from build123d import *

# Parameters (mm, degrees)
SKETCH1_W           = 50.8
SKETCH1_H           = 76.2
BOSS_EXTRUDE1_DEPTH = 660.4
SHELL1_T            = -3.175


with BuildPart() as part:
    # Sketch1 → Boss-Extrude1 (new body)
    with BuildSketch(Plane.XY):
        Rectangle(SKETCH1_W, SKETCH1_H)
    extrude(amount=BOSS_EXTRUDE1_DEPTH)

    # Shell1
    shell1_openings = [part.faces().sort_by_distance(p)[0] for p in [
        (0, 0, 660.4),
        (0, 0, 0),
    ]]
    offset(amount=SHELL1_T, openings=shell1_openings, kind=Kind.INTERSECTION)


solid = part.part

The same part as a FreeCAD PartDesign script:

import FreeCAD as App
import Part
import Sketcher
Q = App.Units.Quantity


def faces_at(feature, points):
    """Names of the faces that lie closest to the given points."""
    faces = feature.Shape.Faces
    near = lambda p: min(range(len(faces)), key=lambda i: faces[i].distToShape(Part.Vertex(*p))[0])
    return sorted({f"Face{near(p) + 1}" for p in points})


def add_polygon(sketch, points):
    """Adds a closed chain of lines whose ends are joined by coincident constraints."""
    first, n = sketch.GeometryCount, len(points)
    for a, b in zip(points, points[1:] + points[:1]):
        sketch.addGeometry(Part.LineSegment(App.Vector(*a, 0), App.Vector(*b, 0)), False)
    for i in range(n):
        sketch.addConstraint(Sketcher.Constraint("Coincident", first + i, 2, first + (i + 1) % n, 1))

doc = App.newDocument("Part")
params = doc.addObject("Spreadsheet::Sheet", "Params")
for row, (alias, value) in enumerate([
    ("sketch1_width", "2 in"),
    ("sketch1_height", "3 in"),
    ("pad1_length", "26 in"),
    ("thickness_wall", "0.125 in"),
], start=1):
    params.set(f"A{row}", alias)
    params.set(f"B{row}", "=" + value)
    params.setAlias(f"B{row}", alias)

body = doc.addObject("PartDesign::Body", "Body")

# Sketch on XY plane
sketch1 = body.newObject("Sketcher::SketchObject", "Sketch")
sketch1.AttachmentSupport = (doc.getObject("XY_Plane"), [""])
sketch1.MapMode = "FlatFace"
add_polygon(sketch1, [(-25.4, 38.1), (-25.4, -38.1), (25.4, -38.1), (25.4, 38.1)])  # lines 0-3
sketch1.addConstraint([
    Sketcher.Constraint("Vertical", 0),
    Sketcher.Constraint("Horizontal", 1),
    Sketcher.Constraint("Vertical", 2),
    Sketcher.Constraint("Horizontal", 3),
    Sketcher.Constraint("Symmetric", 0, 2, 2, 2, -1, 1),
    Sketcher.Constraint("DistanceX", 1, 1, 1, 2, Q("2 in")),
    Sketcher.Constraint("DistanceY", 0, 2, 0, 1, Q("3 in")),
])
sketch1.setExpression("Constraints[9]", "Params.sketch1_width")
sketch1.setExpression("Constraints[10]", "Params.sketch1_height")
pad1 = body.newObject("PartDesign::Pad", "Pad")
pad1.Profile = sketch1
pad1.setExpression("Length", "Params.pad1_length")
doc.recompute()

thickness = body.newObject("PartDesign::Thickness", "Thickness")
thickness.Base = (pad1, faces_at(pad1, [(0, 0, 660.4), (0, 0, 0)]))
thickness.setExpression("Value", "Params.thickness_wall")
thickness.Reversed = True
thickness.Join = "Intersection"

doc.recompute()
